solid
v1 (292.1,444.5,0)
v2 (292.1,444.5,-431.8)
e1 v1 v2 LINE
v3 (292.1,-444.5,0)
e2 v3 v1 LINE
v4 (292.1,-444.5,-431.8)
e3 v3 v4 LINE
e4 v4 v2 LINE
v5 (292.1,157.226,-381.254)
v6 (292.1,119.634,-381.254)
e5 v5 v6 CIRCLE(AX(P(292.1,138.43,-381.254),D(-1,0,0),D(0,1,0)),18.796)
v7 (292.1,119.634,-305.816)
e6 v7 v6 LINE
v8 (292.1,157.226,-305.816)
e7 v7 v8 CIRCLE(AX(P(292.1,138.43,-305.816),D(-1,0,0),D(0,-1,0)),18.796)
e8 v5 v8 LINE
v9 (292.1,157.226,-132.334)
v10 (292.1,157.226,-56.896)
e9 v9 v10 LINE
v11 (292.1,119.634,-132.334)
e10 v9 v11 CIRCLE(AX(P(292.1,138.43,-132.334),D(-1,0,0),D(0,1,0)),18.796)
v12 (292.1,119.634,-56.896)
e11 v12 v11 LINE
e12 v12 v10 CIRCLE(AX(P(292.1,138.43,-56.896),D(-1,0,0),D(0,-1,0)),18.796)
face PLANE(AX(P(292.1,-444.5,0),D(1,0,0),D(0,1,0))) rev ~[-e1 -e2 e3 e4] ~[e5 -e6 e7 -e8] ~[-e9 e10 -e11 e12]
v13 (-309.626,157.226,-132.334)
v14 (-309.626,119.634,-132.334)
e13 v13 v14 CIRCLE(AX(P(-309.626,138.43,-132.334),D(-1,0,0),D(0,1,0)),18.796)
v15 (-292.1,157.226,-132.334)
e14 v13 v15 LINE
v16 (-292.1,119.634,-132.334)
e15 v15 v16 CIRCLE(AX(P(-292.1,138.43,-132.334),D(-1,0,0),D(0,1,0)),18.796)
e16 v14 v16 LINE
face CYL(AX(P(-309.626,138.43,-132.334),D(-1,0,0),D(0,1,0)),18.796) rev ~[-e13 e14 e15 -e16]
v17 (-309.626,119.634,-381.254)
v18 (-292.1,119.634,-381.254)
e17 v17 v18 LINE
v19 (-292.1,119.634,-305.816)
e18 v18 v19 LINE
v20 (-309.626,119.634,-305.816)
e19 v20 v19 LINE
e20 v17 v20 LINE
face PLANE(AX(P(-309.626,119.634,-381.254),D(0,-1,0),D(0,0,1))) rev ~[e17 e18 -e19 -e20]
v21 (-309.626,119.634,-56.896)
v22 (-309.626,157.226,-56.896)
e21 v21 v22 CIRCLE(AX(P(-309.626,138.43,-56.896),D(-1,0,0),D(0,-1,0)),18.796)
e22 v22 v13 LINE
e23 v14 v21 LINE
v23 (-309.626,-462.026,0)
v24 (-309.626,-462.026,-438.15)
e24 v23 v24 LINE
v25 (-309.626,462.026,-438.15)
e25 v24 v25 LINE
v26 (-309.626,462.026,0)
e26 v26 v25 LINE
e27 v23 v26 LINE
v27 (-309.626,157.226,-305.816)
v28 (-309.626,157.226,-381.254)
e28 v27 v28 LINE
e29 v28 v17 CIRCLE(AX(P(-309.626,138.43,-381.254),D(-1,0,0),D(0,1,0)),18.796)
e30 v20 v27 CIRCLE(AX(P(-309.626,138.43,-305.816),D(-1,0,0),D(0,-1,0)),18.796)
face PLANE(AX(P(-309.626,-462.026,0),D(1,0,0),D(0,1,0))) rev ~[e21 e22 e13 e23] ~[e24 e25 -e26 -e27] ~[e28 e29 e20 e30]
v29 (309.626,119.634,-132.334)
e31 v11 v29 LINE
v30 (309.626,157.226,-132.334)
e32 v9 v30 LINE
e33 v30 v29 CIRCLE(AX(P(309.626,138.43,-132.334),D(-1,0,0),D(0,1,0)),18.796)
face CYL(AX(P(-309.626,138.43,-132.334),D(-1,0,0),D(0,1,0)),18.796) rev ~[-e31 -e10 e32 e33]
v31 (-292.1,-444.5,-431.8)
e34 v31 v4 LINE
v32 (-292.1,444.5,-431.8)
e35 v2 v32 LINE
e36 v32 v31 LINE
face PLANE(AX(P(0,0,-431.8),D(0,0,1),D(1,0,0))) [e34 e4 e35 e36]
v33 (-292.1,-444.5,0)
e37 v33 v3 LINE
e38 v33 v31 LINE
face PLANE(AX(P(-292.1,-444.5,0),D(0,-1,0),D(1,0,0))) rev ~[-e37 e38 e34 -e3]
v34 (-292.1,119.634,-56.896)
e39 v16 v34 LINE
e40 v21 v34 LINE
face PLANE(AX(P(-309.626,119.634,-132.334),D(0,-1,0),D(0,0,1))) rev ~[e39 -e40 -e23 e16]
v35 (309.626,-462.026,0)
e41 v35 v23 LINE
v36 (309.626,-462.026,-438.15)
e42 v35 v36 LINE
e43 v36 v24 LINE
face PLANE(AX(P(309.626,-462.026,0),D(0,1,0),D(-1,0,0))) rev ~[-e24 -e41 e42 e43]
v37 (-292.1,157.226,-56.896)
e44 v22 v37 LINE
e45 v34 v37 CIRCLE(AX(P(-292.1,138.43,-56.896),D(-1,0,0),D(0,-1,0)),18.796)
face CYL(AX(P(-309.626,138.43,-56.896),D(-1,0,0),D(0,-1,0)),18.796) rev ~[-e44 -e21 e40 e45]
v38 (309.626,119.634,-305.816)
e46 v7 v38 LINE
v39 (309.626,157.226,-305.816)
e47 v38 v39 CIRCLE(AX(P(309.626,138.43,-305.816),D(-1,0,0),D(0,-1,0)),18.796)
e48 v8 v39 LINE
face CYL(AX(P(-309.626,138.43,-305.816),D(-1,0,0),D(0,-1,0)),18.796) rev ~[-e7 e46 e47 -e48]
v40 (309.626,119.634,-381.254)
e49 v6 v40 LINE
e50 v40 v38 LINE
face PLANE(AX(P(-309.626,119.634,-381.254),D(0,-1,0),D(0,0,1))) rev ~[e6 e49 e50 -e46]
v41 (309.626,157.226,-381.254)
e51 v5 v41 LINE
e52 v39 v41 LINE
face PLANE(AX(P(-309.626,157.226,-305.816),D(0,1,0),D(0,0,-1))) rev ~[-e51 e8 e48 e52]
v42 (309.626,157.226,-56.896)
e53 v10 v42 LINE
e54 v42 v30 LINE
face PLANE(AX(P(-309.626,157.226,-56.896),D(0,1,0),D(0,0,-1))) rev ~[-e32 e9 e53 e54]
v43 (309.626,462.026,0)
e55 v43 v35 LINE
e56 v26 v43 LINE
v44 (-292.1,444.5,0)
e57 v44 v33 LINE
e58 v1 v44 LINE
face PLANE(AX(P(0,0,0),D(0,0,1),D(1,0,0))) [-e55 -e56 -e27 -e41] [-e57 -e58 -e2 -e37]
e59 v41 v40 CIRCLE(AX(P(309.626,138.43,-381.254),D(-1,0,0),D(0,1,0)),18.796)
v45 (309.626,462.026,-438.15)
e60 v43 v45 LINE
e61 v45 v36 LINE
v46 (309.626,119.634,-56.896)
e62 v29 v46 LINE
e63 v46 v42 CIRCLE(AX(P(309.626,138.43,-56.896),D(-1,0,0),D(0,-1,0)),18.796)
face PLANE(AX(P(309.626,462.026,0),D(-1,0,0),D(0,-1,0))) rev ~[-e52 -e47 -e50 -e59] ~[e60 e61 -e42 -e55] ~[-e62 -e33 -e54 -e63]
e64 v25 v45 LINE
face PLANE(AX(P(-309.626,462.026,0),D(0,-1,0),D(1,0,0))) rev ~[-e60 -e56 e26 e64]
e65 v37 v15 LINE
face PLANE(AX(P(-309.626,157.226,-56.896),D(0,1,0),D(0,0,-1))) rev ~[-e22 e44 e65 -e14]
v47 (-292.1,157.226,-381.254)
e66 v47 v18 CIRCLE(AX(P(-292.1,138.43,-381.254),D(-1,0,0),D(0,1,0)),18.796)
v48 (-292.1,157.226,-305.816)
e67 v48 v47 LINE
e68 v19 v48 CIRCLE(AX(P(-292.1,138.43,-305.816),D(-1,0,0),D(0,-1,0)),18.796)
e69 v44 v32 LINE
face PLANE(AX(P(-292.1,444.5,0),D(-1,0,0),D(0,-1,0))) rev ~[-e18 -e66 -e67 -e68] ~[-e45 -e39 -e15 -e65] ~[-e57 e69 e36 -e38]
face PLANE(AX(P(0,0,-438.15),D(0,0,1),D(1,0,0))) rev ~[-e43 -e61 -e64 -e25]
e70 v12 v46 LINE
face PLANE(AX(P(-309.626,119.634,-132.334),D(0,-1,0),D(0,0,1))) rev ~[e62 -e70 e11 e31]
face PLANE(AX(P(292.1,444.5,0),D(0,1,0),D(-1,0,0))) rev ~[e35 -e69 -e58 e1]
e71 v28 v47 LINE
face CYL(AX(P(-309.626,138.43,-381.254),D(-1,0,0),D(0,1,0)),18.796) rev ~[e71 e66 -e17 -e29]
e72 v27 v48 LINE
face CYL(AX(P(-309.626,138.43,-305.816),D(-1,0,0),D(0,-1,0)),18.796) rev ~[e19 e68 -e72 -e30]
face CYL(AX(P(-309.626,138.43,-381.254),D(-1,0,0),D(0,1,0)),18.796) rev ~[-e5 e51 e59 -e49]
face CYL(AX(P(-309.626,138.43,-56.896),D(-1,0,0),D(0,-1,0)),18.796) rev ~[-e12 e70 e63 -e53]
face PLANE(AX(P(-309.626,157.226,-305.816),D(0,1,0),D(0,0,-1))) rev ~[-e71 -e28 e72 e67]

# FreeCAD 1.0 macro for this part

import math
import FreeCAD as App
import Part
import Sketcher

V = App.Vector
Q = App.Units.Quantity

doc = App.newDocument("Part")
body = doc.addObject("PartDesign::Body", "Body")

sketch1 = doc.addObject("Sketcher::SketchObject", "Sketch")
body.addObject(sketch1)
sketch1.AttachmentSupport = (doc.XY_Plane, [""])
sketch1.MapMode = "FlatFace"
sketch1.addGeometry([
    Part.LineSegment(V(310, 462, 0), V(-310, 462, 0)),
    Part.LineSegment(V(-310, 462, 0), V(-310, -462, 0)),
    Part.LineSegment(V(-310, -462, 0), V(310, -462, 0)),
    Part.LineSegment(V(310, -462, 0), V(310, 462, 0)),
], False)
sketch1.addConstraint([
    Sketcher.Constraint("Coincident", 0, 2, 1, 1),
    Sketcher.Constraint("Coincident", 1, 2, 2, 1),
    Sketcher.Constraint("Coincident", 2, 2, 3, 1),
    Sketcher.Constraint("Coincident", 3, 2, 0, 1),
    Sketcher.Constraint("Horizontal", 0),
    Sketcher.Constraint("Vertical", 1),
    Sketcher.Constraint("Horizontal", 2),
    Sketcher.Constraint("Vertical", 3),
    Sketcher.Constraint("Symmetric", 0, 2, 2, 2, -1, 1),
    Sketcher.Constraint("DistanceX", 0, 2, 0, 1, Q("24.38 in")),
    Sketcher.Constraint("DistanceY", 1, 2, 1, 1, Q("36.38 in")),
])
pad1 = doc.addObject("PartDesign::Pad", "Pad")
body.addObject(pad1)
pad1.Profile = sketch1
pad1.Length = Q("17.25 in")
pad1.Reversed = True

sketch2 = doc.addObject("Sketcher::SketchObject", "Sketch001")
body.addObject(sketch2)
sketch2.AttachmentSupport = (doc.XY_Plane, [""])
sketch2.MapMode = "FlatFace"
sketch2.addGeometry([
    Part.LineSegment(V(-292, 444, 0), V(-292, -444, 0)),
    Part.LineSegment(V(-292, -444, 0), V(292, -444, 0)),
    Part.LineSegment(V(292, -444, 0), V(292, 444, 0)),
    Part.LineSegment(V(292, 444, 0), V(-292, 444, 0)),
], False)
sketch2.addConstraint([
    Sketcher.Constraint("Coincident", 0, 2, 1, 1),
    Sketcher.Constraint("Coincident", 1, 2, 2, 1),
    Sketcher.Constraint("Coincident", 2, 2, 3, 1),
    Sketcher.Constraint("Coincident", 3, 2, 0, 1),
    Sketcher.Constraint("Vertical", 0),
    Sketcher.Constraint("Horizontal", 1),
    Sketcher.Constraint("Vertical", 2),
    Sketcher.Constraint("Horizontal", 3),
    Sketcher.Constraint("Symmetric", 0, 2, 2, 2, -1, 1),
    Sketcher.Constraint("DistanceX", 1, 1, 1, 2, Q("23 in")),
    Sketcher.Constraint("DistanceY", 0, 2, 0, 1, Q("35 in")),
])
pocket1 = doc.addObject("PartDesign::Pocket", "Pocket")
body.addObject(pocket1)
pocket1.Profile = sketch2
pocket1.Length = Q("17 in")

sketch3 = doc.addObject("Sketcher::SketchObject", "Sketch002")
body.addObject(sketch3)
sketch3.AttachmentSupport = (doc.YZ_Plane, [""])
sketch3.MapMode = "FlatFace"
sketch3.AttachmentOffset = App.Placement(V(0, 0, -12.19 * 25.4), App.Rotation())
sketch3.addGeometry([
    Part.ArcOfCircle(Part.Circle(V(138, -57, 0), V(0, 0, 1), 19), math.radians(0), math.radians(180)),
    Part.LineSegment(V(157, -57, 0), V(157, -132, 0)),
    Part.ArcOfCircle(Part.Circle(V(138, -132, 0), V(0, 0, 1), 19), math.radians(180), math.radians(360)),
    Part.LineSegment(V(120, -132, 0), V(120, -57, 0)),
    Part.ArcOfCircle(Part.Circle(V(138, -306, 0), V(0, 0, 1), 19), math.radians(0), math.radians(180)),
    Part.LineSegment(V(157, -306, 0), V(157, -381, 0)),
    Part.ArcOfCircle(Part.Circle(V(138, -381, 0), V(0, 0, 1), 19), math.radians(180), math.radians(360)),
    Part.LineSegment(V(120, -381, 0), V(120, -306, 0)),
], False)
sketch3.addConstraint([
    Sketcher.Constraint("Tangent", 0, 1, 1, 1),
    Sketcher.Constraint("Tangent", 1, 2, 2, 2),
    Sketcher.Constraint("Tangent", 2, 1, 3, 1),
    Sketcher.Constraint("Tangent", 3, 2, 0, 2),
    Sketcher.Constraint("Tangent", 4, 1, 5, 1),
    Sketcher.Constraint("Tangent", 5, 2, 6, 2),
    Sketcher.Constraint("Tangent", 6, 1, 7, 1),
    Sketcher.Constraint("Tangent", 7, 2, 4, 2),
    Sketcher.Constraint("Vertical", 1),
    Sketcher.Constraint("Vertical", 3),
    Sketcher.Constraint("Vertical", 5),
    Sketcher.Constraint("Vertical", 7),
    Sketcher.Constraint("Equal", 2, 4),
    Sketcher.Constraint("Vertical", 2, 3, 4, 3),
    Sketcher.Constraint("Equal", 3, 5),
    Sketcher.Constraint("Radius", 0, Q("0.74 in")),
    Sketcher.Constraint("DistanceY", 1, 2, 1, 1, Q("2.97 in")),
    Sketcher.Constraint("DistanceY", 4, 3, 0, 3, Q("9.8 in")),
    Sketcher.Constraint("DistanceX", -1, 1, 0, 3, Q("5.45 in")),
    Sketcher.Constraint("DistanceY", 0, 3, -1, 1, Q("2.24 in")),
])
pocket2 = doc.addObject("PartDesign::Pocket", "Pocket001")
body.addObject(pocket2)
pocket2.Profile = sketch3
pocket2.Type = "ThroughAll"
pocket2.Reversed = True

doc.recompute()
